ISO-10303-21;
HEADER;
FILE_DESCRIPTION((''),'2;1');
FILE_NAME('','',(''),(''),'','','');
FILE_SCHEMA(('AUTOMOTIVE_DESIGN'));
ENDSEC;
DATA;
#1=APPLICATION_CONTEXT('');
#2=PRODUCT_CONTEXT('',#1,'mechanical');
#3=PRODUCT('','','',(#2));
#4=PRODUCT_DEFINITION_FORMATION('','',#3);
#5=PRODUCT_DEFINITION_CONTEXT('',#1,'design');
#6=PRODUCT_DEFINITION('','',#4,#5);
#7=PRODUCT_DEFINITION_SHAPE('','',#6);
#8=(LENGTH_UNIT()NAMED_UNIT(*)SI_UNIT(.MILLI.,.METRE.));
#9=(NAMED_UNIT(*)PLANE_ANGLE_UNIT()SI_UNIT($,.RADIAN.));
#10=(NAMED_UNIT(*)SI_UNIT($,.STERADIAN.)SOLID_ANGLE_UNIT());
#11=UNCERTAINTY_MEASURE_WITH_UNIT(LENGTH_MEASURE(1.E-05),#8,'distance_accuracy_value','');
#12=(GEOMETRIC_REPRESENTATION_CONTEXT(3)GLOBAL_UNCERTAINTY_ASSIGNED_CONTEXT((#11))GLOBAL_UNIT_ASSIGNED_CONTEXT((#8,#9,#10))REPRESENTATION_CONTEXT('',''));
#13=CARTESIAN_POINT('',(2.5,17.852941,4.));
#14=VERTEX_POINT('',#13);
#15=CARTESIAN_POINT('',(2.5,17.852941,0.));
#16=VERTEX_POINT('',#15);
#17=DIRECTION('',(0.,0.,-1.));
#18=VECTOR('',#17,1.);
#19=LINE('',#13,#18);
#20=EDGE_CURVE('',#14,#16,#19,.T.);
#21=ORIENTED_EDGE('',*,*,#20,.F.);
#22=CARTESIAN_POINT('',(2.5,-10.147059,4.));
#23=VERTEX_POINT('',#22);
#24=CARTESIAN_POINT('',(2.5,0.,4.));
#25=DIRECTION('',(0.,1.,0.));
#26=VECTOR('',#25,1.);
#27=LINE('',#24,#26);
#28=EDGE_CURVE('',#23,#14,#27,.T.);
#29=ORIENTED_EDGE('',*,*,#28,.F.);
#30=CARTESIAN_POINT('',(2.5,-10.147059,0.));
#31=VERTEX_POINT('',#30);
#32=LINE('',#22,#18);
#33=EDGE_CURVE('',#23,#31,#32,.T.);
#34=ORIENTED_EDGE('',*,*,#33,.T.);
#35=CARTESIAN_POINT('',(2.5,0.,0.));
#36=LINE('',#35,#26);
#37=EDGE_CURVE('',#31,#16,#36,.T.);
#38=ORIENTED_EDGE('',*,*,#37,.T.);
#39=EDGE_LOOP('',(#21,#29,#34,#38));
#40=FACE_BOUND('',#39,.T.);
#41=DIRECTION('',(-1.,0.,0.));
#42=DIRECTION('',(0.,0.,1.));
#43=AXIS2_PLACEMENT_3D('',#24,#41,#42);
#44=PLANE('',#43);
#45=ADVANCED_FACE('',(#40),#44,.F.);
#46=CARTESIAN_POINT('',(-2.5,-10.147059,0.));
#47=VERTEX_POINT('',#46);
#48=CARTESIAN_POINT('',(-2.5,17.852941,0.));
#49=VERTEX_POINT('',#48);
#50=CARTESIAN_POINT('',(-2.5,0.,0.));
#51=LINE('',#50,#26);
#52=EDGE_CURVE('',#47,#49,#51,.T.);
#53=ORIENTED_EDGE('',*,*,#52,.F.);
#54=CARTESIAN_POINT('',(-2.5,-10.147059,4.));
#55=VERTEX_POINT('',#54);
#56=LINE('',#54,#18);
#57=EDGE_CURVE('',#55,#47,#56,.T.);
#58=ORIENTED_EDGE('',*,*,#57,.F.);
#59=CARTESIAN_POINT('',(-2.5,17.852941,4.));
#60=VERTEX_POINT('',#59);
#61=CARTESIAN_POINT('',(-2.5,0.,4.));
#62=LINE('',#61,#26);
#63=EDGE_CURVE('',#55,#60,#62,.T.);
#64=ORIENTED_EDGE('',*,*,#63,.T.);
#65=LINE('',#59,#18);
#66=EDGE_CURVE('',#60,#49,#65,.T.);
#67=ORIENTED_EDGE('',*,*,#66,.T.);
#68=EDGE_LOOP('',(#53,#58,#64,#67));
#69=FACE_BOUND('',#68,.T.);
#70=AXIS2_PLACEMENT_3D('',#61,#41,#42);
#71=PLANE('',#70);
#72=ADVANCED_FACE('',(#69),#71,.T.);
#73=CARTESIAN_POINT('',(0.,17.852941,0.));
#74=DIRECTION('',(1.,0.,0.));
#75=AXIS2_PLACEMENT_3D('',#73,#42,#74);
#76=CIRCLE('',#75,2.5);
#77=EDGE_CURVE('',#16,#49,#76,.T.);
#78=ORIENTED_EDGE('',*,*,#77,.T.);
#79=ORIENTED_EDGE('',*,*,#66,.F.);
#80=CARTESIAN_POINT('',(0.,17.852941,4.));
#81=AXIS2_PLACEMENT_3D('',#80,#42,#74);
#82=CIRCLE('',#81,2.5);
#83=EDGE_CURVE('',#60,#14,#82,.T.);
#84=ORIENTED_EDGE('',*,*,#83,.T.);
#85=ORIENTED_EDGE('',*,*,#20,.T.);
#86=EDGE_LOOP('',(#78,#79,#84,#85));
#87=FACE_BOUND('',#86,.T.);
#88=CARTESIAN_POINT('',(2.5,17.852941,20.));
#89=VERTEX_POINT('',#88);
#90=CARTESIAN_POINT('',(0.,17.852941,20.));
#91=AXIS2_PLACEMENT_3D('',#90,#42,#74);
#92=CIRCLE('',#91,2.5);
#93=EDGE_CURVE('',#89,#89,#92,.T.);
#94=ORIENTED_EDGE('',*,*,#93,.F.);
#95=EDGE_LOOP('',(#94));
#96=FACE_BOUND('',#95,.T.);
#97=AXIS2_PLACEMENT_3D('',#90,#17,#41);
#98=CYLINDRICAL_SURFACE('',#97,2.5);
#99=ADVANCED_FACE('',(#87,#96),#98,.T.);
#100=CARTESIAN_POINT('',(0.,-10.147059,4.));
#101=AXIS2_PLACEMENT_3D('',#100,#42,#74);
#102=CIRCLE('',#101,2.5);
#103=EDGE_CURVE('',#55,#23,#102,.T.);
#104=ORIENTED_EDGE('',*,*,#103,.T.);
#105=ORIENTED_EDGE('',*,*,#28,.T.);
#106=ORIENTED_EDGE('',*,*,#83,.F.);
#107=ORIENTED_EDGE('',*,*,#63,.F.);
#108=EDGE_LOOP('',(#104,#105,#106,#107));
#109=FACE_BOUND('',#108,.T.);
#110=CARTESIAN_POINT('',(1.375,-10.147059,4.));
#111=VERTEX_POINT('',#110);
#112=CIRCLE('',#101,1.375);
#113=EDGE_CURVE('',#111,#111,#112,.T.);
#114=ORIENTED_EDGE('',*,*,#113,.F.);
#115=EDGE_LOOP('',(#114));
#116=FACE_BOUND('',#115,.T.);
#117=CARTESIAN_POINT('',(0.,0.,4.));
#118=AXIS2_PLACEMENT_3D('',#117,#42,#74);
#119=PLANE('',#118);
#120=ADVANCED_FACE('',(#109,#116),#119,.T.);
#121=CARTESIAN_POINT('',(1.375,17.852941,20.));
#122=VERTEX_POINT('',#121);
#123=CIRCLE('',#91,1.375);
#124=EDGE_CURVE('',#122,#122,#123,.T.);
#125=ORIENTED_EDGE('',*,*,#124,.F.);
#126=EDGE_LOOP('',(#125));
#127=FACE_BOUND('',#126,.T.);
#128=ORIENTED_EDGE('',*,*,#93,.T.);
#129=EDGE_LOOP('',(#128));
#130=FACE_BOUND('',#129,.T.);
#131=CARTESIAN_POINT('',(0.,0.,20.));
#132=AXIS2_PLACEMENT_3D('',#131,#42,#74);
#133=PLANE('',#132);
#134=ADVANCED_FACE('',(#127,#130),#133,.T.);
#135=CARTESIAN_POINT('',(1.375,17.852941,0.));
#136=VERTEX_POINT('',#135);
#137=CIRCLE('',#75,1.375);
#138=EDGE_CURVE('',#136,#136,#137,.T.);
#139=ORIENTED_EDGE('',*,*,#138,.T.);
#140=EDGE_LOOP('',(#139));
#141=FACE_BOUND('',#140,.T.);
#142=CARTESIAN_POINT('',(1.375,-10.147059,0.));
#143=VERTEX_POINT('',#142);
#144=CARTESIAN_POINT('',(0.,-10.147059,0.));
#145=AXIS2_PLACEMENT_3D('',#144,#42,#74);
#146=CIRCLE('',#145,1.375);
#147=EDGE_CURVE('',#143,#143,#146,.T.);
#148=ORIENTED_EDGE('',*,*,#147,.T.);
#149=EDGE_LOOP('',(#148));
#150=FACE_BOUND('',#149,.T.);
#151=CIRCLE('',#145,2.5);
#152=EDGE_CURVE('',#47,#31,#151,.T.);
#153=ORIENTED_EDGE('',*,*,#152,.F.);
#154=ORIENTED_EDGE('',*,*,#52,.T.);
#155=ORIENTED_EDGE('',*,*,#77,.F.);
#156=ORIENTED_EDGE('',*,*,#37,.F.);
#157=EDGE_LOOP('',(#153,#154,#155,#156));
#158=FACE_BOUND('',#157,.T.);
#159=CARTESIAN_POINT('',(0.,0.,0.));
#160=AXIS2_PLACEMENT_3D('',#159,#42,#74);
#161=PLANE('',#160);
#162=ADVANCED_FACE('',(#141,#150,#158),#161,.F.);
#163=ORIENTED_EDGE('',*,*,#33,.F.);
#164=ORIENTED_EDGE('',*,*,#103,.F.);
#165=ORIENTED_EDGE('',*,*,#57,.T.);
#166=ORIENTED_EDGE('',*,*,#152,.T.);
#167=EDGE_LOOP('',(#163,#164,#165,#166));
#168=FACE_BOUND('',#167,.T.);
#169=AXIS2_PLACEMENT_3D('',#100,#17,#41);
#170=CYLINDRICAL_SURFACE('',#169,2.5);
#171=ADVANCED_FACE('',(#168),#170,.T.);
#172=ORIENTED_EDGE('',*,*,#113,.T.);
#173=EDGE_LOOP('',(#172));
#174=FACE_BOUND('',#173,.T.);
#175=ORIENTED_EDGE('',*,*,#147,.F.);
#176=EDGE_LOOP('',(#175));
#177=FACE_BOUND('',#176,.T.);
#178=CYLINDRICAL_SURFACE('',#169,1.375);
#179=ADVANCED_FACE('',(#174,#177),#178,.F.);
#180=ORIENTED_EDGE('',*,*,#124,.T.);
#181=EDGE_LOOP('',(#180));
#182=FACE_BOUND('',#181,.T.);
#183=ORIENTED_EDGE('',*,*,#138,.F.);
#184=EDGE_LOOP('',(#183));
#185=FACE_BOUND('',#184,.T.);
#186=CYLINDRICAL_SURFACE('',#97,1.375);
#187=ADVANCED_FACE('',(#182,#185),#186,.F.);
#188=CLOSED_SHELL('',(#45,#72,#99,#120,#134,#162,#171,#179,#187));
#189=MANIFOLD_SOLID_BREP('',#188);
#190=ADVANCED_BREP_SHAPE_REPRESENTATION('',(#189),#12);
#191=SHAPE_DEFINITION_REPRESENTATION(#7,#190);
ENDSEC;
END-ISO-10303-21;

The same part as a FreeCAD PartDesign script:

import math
import FreeCAD as App
import Part
import Sketcher

V = App.Vector

doc = App.newDocument("Part")
body = doc.addObject("PartDesign::Body", "Body")

sketch1 = body.newObject("Sketcher::SketchObject", "Sketch")
sketch1.AttachmentSupport = (doc.getObject("XY_Plane"), [""])
sketch1.MapMode = "FlatFace"
sketch1.addGeometry([
    Part.LineSegment(V(-2.5, 17.852941, 0), V(-2.5, -10.147059, 0)),
    Part.ArcOfCircle(Part.Circle(V(0, -10.147059, 0), V(0, 0, 1), 2.5), math.radians(180), math.radians(360)),
    Part.LineSegment(V(2.5, -10.147059, 0), V(2.5, 17.852941, 0)),
    Part.ArcOfCircle(Part.Circle(V(0, 17.852941, 0), V(0, 0, 1), 2.5), math.radians(180), math.radians(360)),
    Part.Circle(V(0, -10.147059, 0), V(0, 0, 1), 1.375),
], False)
sketch1.addConstraint([
    Sketcher.Constraint("Tangent", 0, 2, 1, 1),
    Sketcher.Constraint("Tangent", 1, 2, 2, 1),
    Sketcher.Constraint("Tangent", 2, 2, 3, 2),
    Sketcher.Constraint("Tangent", 3, 1, 0, 1),
    Sketcher.Constraint("Vertical", 0),
    Sketcher.Constraint("Vertical", 2),
    Sketcher.Constraint("Coincident", 4, 3, 1, 3),
    Sketcher.Constraint("PointOnObject", 1, 3, -2),
    Sketcher.Constraint("Radius", 1, 2.5),
    Sketcher.Constraint("Diameter", 4, 2.75),
    Sketcher.Constraint("DistanceY", 0, 2, 0, 1, 28.0),
    Sketcher.Constraint("DistanceY", 1, 3, -1, 1, 10.147059),
])
pad1 = body.newObject("PartDesign::Pad", "Pad")
pad1.Profile = sketch1
pad1.Length = 4

sketch2 = body.newObject("Sketcher::SketchObject", "Sketch001")
sketch2.AttachmentSupport = (doc.getObject("XY_Plane"), [""])
sketch2.MapMode = "FlatFace"
sketch2.addGeometry([
    Part.Circle(V(0, 17.852941, 0), V(0, 0, 1), 2.5),
    Part.Circle(V(0, 17.852941, 0), V(0, 0, 1), 1.375),
], False)
sketch2.addConstraint([
    Sketcher.Constraint("Coincident", 1, 3, 0, 3),
    Sketcher.Constraint("PointOnObject", 0, 3, -2),
    Sketcher.Constraint("Diameter", 0, 5.0),
    Sketcher.Constraint("Diameter", 1, 2.75),
    Sketcher.Constraint("DistanceY", -1, 1, 0, 3, 17.852941),
])
pad2 = body.newObject("PartDesign::Pad", "Pad001")
pad2.Profile = sketch2
pad2.Length = 20

doc.recompute()
